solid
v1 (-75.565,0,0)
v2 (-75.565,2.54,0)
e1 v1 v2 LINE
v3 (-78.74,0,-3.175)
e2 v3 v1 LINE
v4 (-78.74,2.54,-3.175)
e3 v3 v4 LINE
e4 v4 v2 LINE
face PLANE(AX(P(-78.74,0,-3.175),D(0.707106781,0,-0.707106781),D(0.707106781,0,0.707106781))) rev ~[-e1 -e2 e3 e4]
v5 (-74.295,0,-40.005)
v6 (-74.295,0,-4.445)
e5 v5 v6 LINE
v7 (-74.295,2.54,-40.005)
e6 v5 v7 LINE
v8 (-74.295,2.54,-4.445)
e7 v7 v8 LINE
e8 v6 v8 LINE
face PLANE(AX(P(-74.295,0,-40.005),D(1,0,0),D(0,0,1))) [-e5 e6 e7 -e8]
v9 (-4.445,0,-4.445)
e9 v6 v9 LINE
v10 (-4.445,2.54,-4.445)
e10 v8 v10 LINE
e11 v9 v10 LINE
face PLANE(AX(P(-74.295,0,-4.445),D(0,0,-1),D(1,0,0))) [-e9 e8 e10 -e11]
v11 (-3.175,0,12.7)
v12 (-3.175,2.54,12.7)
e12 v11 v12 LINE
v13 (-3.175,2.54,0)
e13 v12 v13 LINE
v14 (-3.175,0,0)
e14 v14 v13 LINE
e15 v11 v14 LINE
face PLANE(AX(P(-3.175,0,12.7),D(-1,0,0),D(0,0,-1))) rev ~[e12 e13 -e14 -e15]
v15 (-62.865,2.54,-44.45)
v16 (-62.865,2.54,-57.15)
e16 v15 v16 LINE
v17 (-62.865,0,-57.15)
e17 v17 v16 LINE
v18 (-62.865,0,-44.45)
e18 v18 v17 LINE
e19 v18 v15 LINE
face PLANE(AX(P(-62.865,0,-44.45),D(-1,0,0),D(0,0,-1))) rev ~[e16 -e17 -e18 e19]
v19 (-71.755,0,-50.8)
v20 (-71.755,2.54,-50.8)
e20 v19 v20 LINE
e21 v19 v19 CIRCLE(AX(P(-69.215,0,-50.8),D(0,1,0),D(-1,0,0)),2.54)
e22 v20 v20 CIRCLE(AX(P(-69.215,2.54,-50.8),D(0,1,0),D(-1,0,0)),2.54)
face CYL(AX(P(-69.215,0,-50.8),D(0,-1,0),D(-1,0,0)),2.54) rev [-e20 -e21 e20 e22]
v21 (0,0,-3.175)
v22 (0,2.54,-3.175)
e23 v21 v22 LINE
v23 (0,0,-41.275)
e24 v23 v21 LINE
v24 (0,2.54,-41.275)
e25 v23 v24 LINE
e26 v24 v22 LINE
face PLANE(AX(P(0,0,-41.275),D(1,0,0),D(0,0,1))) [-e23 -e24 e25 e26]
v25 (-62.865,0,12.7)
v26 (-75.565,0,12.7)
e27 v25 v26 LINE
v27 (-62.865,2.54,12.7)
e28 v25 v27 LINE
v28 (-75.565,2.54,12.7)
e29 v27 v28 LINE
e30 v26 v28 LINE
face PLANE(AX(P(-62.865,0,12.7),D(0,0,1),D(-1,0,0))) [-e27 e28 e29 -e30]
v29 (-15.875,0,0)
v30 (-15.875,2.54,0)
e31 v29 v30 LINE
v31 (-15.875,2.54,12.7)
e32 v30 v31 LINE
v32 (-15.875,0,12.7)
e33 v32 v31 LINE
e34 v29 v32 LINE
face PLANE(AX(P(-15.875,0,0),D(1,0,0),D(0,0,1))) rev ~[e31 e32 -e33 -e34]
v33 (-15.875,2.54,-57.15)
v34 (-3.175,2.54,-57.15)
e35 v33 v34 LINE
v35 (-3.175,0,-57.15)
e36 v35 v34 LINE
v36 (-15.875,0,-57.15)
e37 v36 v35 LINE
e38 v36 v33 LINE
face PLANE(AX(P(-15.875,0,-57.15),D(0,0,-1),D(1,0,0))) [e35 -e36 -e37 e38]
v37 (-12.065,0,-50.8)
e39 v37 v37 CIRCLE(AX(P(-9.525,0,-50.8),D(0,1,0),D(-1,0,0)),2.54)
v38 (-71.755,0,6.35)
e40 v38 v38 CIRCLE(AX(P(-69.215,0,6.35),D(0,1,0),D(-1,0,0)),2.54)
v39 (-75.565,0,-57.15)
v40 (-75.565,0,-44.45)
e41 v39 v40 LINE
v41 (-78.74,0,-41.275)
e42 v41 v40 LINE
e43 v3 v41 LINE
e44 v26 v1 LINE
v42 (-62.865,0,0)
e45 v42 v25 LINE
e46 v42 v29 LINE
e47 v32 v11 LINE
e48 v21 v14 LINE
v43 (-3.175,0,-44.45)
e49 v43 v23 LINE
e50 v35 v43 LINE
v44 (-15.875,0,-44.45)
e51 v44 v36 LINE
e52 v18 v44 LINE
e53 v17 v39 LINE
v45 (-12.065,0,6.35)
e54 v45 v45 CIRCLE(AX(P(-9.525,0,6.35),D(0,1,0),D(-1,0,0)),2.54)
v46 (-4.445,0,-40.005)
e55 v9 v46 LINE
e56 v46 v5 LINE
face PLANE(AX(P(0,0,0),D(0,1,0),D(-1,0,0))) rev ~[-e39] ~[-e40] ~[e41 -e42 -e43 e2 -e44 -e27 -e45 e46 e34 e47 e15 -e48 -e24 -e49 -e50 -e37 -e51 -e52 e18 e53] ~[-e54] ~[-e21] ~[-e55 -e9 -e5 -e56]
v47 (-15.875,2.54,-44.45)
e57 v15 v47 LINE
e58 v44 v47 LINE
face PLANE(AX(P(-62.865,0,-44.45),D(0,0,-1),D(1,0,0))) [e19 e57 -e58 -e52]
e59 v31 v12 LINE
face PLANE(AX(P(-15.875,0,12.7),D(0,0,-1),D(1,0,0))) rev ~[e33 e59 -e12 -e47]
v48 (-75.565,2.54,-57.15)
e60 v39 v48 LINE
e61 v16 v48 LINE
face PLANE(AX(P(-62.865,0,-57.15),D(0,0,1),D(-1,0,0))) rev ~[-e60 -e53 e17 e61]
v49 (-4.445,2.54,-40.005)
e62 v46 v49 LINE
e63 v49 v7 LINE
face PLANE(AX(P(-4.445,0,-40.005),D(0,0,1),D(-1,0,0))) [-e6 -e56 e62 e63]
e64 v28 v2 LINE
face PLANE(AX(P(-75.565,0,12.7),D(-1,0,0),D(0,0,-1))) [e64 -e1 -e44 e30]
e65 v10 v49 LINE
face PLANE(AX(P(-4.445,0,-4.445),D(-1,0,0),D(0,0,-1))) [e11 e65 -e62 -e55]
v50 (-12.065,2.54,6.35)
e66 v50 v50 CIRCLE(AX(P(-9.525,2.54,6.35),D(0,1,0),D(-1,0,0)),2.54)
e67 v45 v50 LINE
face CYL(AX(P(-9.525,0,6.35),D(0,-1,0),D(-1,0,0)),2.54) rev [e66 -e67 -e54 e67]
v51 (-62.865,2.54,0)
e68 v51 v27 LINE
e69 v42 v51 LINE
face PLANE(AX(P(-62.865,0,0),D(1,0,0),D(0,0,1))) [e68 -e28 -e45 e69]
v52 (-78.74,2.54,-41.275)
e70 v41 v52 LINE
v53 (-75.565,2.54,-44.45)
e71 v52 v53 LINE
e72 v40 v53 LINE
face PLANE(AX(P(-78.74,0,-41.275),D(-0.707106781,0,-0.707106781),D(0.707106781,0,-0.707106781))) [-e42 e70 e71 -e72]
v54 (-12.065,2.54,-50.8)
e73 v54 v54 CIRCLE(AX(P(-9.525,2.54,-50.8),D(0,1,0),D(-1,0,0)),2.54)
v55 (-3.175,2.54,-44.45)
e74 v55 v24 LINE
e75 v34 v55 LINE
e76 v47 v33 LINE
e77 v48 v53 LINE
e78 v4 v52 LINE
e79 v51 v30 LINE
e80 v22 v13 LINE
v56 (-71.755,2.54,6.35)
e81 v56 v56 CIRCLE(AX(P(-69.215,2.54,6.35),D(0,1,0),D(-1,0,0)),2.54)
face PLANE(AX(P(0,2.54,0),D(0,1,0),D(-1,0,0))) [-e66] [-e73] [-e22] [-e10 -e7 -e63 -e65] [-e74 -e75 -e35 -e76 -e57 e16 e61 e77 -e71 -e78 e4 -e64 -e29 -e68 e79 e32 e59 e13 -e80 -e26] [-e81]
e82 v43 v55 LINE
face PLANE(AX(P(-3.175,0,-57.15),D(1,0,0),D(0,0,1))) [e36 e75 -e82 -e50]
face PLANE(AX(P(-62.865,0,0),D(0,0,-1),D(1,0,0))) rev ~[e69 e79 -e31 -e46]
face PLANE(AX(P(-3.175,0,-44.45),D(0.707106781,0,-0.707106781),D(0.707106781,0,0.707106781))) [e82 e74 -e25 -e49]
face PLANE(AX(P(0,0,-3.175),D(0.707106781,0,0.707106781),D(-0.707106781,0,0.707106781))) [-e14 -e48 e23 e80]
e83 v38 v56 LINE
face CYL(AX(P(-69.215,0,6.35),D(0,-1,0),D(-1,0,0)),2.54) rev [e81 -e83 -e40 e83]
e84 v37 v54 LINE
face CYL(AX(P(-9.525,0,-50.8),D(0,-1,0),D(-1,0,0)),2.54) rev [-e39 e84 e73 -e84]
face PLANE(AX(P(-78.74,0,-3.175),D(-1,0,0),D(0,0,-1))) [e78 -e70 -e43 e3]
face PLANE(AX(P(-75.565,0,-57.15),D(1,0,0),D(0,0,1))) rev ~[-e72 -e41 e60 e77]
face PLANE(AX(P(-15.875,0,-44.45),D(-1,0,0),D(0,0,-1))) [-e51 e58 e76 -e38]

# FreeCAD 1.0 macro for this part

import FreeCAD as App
import Part
import Sketcher

V = App.Vector
Q = App.Units.Quantity


def add_polygon(sketch, points):
    """Adds a closed chain of lines whose ends are joined by coincident constraints."""
    first, n = sketch.GeometryCount, len(points)
    for a, b in zip(points, points[1:] + points[:1]):
        sketch.addGeometry(Part.LineSegment(App.Vector(*a, 0), App.Vector(*b, 0)), False)
    for i in range(n):
        sketch.addConstraint(Sketcher.Constraint("Coincident", first + i, 2, first + (i + 1) % n, 1))

doc = App.newDocument("Part")
params = doc.addObject("Spreadsheet::Sheet", "Params")
for row, (alias, value) in enumerate([
    ("sketch1_diameter", "0.2 in"),
    ("sketch1_width", "0.5 in"),
    ("sketch1_height", "1.5 in"),
    ("sketch1_height2", "1.4 in"),
    ("sketch1_width2", "1.85 in"),
    ("pad1_length", "0.1 in"),
], start=1):
    params.set(f"A{row}", alias)
    params.set(f"B{row}", "=" + value)
    params.setAlias(f"B{row}", alias)

body = doc.addObject("PartDesign::Body", "Body")

# Sketch on XZ plane
sketch1 = body.newObject("Sketcher::SketchObject", "Sketch")
sketch1.AttachmentSupport = (doc.getObject("XZ_Plane"), [""])
sketch1.MapMode = "FlatFace"
add_polygon(sketch1, [(-78.74, -41.275), (-78.74, -3.175), (-75.565, 0), (-75.565, 12.7), (-62.865, 12.7), (-62.865, 0), (-15.875, 0), (-15.875, 12.7), (-3.175, 12.7), (-3.175, 0), (0, -3.175), (0, -41.275), (-3.175, -44.45), (-3.175, -57.15), (-15.875, -57.15), (-15.875, -44.45), (-62.865, -44.45), (-62.865, -57.15), (-75.565, -57.15), (-75.565, -44.45)])  # lines 0-19
sketch1.addGeometry(Part.Circle(V(-9.525, -50.8, 0), V(0, 0, 1), 2.54), False)  # 20
sketch1.addGeometry(Part.Circle(V(-69.215, -50.8, 0), V(0, 0, 1), 2.54), False)  # 21
sketch1.addGeometry(Part.Circle(V(-9.525, 6.35, 0), V(0, 0, 1), 2.54), False)  # 22
add_polygon(sketch1, [(-4.445, -4.445), (-74.295, -4.445), (-74.295, -40.005), (-4.445, -40.005)])  # lines 23-26
sketch1.addGeometry(Part.Circle(V(-69.215, 6.35, 0), V(0, 0, 1), 2.54), False)  # 27
sketch1.addConstraint([
    Sketcher.Constraint("Vertical", 0),
    Sketcher.Constraint("Vertical", 2),
    Sketcher.Constraint("Horizontal", 3),
    Sketcher.Constraint("Vertical", 4),
    Sketcher.Constraint("Horizontal", 5),
    Sketcher.Constraint("Vertical", 6),
    Sketcher.Constraint("Horizontal", 7),
    Sketcher.Constraint("Vertical", 8),
    Sketcher.Constraint("Vertical", 10),
    Sketcher.Constraint("Vertical", 12),
    Sketcher.Constraint("Horizontal", 13),
    Sketcher.Constraint("Vertical", 14),
    Sketcher.Constraint("Horizontal", 15),
    Sketcher.Constraint("Vertical", 16),
    Sketcher.Constraint("Horizontal", 17),
    Sketcher.Constraint("Vertical", 18),
    Sketcher.Constraint("Horizontal", 23),
    Sketcher.Constraint("Vertical", 24),
    Sketcher.Constraint("Horizontal", 25),
    Sketcher.Constraint("Vertical", 26),
    Sketcher.Constraint("Equal", 20, 21),
    Sketcher.Constraint("Equal", 21, 22),
    Sketcher.Constraint("Equal", 22, 27),
    Sketcher.Constraint("PointOnObject", 1, 2, -1),
    Sketcher.Constraint("PointOnObject", 4, 2, -1),
    Sketcher.Constraint("PointOnObject", 8, 2, -1),
    Sketcher.Constraint("PointOnObject", 9, 2, -2),
    Sketcher.Constraint("Perpendicular", 1, 9),
    Sketcher.Constraint("Perpendicular", 9, 11),
    Sketcher.Constraint("Perpendicular", 11, 19),
    Sketcher.Constraint("Horizontal", 20, 3, 21, 3),
    Sketcher.Constraint("Horizontal", 22, 3, 27, 3),
    Sketcher.Constraint("Horizontal", 3, 2, 6, 2),
    Sketcher.Constraint("Horizontal", 0, 2, 9, 2),
    Sketcher.Constraint("Horizontal", 11, 2, 14, 2),
    Sketcher.Constraint("Horizontal", 13, 2, 16, 2),
    Sketcher.Constraint("Horizontal", 15, 2, 18, 2),
    Sketcher.Constraint("Horizontal", 10, 2, 19, 2),
    Sketcher.Constraint("Vertical", 20, 3, 22, 3),
    Sketcher.Constraint("Vertical", 21, 3, 27, 3),
    Sketcher.Constraint("Vertical", 8, 2, 11, 2),
    Sketcher.Constraint("Vertical", 6, 2, 13, 2),
    Sketcher.Constraint("Vertical", 4, 2, 15, 2),
    Sketcher.Constraint("Vertical", 2, 2, 17, 2),
    Sketcher.Constraint("Equal", 3, 7),
    Sketcher.Constraint("Equal", 17, 2),
    Sketcher.Constraint("Equal", 8, 12),
    Sketcher.Constraint("Diameter", 20, Q("0.2 in")),
    Sketcher.Constraint("DistanceX", 3, 1, 3, 2, Q("0.5 in")),
    Sketcher.Constraint("DistanceY", 0, 1, 0, 2, Q("1.5 in")),
    Sketcher.Constraint("DistanceY", 24, 2, 24, 1, Q("1.4 in")),
    Sketcher.Constraint("DistanceY", 20, 3, -1, 1, Q("2 in")),
    Sketcher.Constraint("DistanceX", 5, 1, 5, 2, Q("1.85 in")),
    Sketcher.Constraint("DistanceX", 23, 2, 23, 1, Q("2.75 in")),
    Sketcher.Constraint("DistanceX", 0, 2, -1, 1, Q("3.1 in")),
    Sketcher.Constraint("DistanceX", 1, 2, 22, 3, Q("2.6 in")),
    Sketcher.Constraint("DistanceX", 27, 3, 5, 2, Q("2.1 in")),
    Sketcher.Constraint("DistanceX", 23, 2, 27, 3, Q("0.2 in")),
    Sketcher.Constraint("DistanceY", -1, 1, 22, 3, Q("0.25 in")),
    Sketcher.Constraint("DistanceY", 23, 2, 0, 2, Q("0.05 in")),
])
sketch1.setExpression("Constraints[71]", "Params.sketch1_diameter")
sketch1.setExpression("Constraints[72]", "Params.sketch1_width")
sketch1.setExpression("Constraints[73]", "Params.sketch1_height")
sketch1.setExpression("Constraints[74]", "Params.sketch1_height2")
sketch1.setExpression("Constraints[76]", "Params.sketch1_width2")
pad1 = body.newObject("PartDesign::Pad", "Pad")
pad1.Profile = sketch1
pad1.setExpression("Length", "Params.pad1_length")
pad1.Reversed = True

doc.recompute()
